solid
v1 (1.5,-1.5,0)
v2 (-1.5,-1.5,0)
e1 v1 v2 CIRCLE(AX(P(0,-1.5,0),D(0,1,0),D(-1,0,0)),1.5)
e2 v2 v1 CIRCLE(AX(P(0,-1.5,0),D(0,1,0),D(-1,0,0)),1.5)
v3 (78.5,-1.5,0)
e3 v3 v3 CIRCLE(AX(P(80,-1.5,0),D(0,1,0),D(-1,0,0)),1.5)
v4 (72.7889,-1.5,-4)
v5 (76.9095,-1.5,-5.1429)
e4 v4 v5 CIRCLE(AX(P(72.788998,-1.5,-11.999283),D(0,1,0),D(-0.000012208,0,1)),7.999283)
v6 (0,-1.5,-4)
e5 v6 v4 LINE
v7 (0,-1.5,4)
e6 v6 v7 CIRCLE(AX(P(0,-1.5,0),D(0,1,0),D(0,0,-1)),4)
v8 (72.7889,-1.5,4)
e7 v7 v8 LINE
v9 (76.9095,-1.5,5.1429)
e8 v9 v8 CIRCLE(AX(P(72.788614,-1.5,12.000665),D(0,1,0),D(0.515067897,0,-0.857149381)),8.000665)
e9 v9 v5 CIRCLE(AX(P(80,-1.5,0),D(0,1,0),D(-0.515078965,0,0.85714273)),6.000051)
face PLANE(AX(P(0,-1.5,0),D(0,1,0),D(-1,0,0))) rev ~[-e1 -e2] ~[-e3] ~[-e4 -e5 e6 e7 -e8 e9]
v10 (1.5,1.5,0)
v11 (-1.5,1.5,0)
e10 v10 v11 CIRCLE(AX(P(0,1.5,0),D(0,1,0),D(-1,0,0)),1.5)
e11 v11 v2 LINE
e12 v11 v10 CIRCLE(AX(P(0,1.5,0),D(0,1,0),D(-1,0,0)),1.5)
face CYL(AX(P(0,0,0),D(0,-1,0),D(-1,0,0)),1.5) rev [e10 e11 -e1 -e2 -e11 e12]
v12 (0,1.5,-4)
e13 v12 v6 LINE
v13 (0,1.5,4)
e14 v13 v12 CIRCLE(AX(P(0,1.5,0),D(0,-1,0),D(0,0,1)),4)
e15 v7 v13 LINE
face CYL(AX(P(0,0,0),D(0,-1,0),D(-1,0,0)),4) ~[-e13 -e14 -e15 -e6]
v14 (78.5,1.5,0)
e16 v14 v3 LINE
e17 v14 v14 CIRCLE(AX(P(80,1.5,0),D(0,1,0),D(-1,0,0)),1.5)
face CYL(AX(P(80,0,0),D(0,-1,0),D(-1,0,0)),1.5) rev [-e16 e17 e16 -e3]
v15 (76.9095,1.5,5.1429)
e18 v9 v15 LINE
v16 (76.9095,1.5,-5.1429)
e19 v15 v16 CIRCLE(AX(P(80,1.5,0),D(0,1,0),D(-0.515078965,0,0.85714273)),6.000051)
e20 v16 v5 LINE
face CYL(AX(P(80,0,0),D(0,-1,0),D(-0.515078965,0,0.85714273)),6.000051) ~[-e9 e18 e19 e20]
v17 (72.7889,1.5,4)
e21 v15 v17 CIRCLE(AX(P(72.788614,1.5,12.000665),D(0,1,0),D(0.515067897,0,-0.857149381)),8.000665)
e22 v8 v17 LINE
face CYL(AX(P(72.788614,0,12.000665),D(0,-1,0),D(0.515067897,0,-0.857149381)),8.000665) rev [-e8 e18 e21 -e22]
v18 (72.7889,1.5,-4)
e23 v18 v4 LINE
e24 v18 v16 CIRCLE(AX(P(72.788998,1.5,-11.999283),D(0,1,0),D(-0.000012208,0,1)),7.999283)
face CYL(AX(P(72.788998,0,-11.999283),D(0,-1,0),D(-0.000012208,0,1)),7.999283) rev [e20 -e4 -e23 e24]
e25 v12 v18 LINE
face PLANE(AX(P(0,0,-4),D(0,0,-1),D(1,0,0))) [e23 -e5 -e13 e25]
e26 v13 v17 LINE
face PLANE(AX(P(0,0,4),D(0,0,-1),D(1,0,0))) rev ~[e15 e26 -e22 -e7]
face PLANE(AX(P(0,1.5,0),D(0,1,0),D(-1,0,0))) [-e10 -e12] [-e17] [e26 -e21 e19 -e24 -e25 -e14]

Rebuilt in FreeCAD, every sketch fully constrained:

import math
import FreeCAD as App
import Part
import Sketcher
Q = App.Units.Quantity

doc = App.newDocument("Part")
body = doc.addObject("PartDesign::Body", "Body")

sketch1 = doc.addObject("Sketcher::SketchObject", "Sketch")
body.addObject(sketch1)
sketch1.AttachmentSupport = (doc.XZ_Plane, [""])
sketch1.MapMode = "FlatFace"
sketch1.addGeometry([
    Part.LineSegment(App.Vector(0, 4, 0), App.Vector(72.8, 4, 0)),
    Part.ArcOfCircle(Part.Circle(App.Vector(72.8, 12, 0), App.Vector(0, 0, 1), 8), math.radians(-90), math.radians(-59)),
    Part.ArcOfCircle(Part.Circle(App.Vector(80, 0, 0), App.Vector(0, 0, 1), 6), math.radians(-121), math.radians(121)),
    Part.ArcOfCircle(Part.Circle(App.Vector(72.8, -12, 0), App.Vector(0, 0, 1), 8), math.radians(59), math.radians(90)),
    Part.LineSegment(App.Vector(72.8, -4, 0), App.Vector(0, -4, 0)),
    Part.ArcOfCircle(Part.Circle(App.Vector(0, 0, 0), App.Vector(0, 0, 1), 4), math.radians(90), math.radians(270)),
    Part.Circle(App.Vector(0, 0, 0), App.Vector(0, 0, 1), 1.5),
    Part.Circle(App.Vector(80, 0, 0), App.Vector(0, 0, 1), 1.5),
], False)
sketch1.addConstraint([
    Sketcher.Constraint("Tangent", 0, 2, 1, 1),
    Sketcher.Constraint("Tangent", 1, 2, 2, 2),
    Sketcher.Constraint("Tangent", 2, 1, 3, 1),
    Sketcher.Constraint("Tangent", 3, 2, 4, 1),
    Sketcher.Constraint("Tangent", 4, 2, 5, 2),
    Sketcher.Constraint("Tangent", 5, 1, 0, 1),
    Sketcher.Constraint("Horizontal", 0),
    Sketcher.Constraint("Horizontal", 4),
    Sketcher.Constraint("Coincident", 5, 3, -1, 1),
    Sketcher.Constraint("Coincident", 6, 3, -1, 1),
    Sketcher.Constraint("Coincident", 7, 3, 2, 3),
    Sketcher.Constraint("Equal", 1, 3),
    Sketcher.Constraint("Equal", 6, 7),
    Sketcher.Constraint("PointOnObject", 2, 3, -1),
    Sketcher.Constraint("Diameter", 6, Q("3 mm")),
    Sketcher.Constraint("Radius", 1, Q("8 mm")),
    Sketcher.Constraint("Radius", 2, Q("6 mm")),
    Sketcher.Constraint("Radius", 5, Q("4 mm")),
    Sketcher.Constraint("DistanceX", -1, 1, 2, 3, Q("80 mm")),
])
pad1 = doc.addObject("PartDesign::Pad", "Pad")
body.addObject(pad1)
pad1.Profile = sketch1
pad1.Length = 3
pad1.Midplane = True

doc.recompute()
